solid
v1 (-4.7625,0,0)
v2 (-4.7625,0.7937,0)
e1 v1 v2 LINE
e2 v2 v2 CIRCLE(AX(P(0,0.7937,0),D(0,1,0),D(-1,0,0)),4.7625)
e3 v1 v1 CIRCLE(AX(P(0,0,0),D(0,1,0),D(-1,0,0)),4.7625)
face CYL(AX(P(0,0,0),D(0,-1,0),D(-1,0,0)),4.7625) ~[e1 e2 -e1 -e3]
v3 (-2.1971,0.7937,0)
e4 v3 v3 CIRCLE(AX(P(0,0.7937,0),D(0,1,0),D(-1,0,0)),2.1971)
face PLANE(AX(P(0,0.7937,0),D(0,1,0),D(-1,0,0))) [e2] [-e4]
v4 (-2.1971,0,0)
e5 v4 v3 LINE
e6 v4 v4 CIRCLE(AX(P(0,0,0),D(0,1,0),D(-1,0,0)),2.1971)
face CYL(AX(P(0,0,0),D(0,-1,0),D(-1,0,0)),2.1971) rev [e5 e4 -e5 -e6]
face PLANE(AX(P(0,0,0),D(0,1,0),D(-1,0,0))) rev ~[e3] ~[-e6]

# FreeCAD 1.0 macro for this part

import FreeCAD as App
import Part
import Sketcher

V = App.Vector
Q = App.Units.Quantity

doc = App.newDocument("Part")
body = doc.addObject("PartDesign::Body", "Body")

# Sketch on XZ plane
sketch1 = body.newObject("Sketcher::SketchObject", "Sketch")
sketch1.AttachmentSupport = (doc.getObject("XZ_Plane"), [""])
sketch1.MapMode = "FlatFace"
sketch1.addGeometry(Part.Circle(V(0, 0, 0), V(0, 0, 1), 4.7625), False)
sketch1.addGeometry(Part.Circle(V(0, 0, 0), V(0, 0, 1), 2.1971), False)
sketch1.addConstraint(Sketcher.Constraint("Coincident", 0, 3, -1, 1))
sketch1.addConstraint(Sketcher.Constraint("Coincident", 1, 3, -1, 1))
sketch1.addConstraint(Sketcher.Constraint("Diameter", 0, Q("0.375 in")))
sketch1.addConstraint(Sketcher.Constraint("Diameter", 1, Q("0.173 in")))
pad1 = body.newObject("PartDesign::Pad", "Pad")
pad1.Profile = sketch1
pad1.Length = Q("0.031248 in")
pad1.Reversed = True

doc.recompute()
